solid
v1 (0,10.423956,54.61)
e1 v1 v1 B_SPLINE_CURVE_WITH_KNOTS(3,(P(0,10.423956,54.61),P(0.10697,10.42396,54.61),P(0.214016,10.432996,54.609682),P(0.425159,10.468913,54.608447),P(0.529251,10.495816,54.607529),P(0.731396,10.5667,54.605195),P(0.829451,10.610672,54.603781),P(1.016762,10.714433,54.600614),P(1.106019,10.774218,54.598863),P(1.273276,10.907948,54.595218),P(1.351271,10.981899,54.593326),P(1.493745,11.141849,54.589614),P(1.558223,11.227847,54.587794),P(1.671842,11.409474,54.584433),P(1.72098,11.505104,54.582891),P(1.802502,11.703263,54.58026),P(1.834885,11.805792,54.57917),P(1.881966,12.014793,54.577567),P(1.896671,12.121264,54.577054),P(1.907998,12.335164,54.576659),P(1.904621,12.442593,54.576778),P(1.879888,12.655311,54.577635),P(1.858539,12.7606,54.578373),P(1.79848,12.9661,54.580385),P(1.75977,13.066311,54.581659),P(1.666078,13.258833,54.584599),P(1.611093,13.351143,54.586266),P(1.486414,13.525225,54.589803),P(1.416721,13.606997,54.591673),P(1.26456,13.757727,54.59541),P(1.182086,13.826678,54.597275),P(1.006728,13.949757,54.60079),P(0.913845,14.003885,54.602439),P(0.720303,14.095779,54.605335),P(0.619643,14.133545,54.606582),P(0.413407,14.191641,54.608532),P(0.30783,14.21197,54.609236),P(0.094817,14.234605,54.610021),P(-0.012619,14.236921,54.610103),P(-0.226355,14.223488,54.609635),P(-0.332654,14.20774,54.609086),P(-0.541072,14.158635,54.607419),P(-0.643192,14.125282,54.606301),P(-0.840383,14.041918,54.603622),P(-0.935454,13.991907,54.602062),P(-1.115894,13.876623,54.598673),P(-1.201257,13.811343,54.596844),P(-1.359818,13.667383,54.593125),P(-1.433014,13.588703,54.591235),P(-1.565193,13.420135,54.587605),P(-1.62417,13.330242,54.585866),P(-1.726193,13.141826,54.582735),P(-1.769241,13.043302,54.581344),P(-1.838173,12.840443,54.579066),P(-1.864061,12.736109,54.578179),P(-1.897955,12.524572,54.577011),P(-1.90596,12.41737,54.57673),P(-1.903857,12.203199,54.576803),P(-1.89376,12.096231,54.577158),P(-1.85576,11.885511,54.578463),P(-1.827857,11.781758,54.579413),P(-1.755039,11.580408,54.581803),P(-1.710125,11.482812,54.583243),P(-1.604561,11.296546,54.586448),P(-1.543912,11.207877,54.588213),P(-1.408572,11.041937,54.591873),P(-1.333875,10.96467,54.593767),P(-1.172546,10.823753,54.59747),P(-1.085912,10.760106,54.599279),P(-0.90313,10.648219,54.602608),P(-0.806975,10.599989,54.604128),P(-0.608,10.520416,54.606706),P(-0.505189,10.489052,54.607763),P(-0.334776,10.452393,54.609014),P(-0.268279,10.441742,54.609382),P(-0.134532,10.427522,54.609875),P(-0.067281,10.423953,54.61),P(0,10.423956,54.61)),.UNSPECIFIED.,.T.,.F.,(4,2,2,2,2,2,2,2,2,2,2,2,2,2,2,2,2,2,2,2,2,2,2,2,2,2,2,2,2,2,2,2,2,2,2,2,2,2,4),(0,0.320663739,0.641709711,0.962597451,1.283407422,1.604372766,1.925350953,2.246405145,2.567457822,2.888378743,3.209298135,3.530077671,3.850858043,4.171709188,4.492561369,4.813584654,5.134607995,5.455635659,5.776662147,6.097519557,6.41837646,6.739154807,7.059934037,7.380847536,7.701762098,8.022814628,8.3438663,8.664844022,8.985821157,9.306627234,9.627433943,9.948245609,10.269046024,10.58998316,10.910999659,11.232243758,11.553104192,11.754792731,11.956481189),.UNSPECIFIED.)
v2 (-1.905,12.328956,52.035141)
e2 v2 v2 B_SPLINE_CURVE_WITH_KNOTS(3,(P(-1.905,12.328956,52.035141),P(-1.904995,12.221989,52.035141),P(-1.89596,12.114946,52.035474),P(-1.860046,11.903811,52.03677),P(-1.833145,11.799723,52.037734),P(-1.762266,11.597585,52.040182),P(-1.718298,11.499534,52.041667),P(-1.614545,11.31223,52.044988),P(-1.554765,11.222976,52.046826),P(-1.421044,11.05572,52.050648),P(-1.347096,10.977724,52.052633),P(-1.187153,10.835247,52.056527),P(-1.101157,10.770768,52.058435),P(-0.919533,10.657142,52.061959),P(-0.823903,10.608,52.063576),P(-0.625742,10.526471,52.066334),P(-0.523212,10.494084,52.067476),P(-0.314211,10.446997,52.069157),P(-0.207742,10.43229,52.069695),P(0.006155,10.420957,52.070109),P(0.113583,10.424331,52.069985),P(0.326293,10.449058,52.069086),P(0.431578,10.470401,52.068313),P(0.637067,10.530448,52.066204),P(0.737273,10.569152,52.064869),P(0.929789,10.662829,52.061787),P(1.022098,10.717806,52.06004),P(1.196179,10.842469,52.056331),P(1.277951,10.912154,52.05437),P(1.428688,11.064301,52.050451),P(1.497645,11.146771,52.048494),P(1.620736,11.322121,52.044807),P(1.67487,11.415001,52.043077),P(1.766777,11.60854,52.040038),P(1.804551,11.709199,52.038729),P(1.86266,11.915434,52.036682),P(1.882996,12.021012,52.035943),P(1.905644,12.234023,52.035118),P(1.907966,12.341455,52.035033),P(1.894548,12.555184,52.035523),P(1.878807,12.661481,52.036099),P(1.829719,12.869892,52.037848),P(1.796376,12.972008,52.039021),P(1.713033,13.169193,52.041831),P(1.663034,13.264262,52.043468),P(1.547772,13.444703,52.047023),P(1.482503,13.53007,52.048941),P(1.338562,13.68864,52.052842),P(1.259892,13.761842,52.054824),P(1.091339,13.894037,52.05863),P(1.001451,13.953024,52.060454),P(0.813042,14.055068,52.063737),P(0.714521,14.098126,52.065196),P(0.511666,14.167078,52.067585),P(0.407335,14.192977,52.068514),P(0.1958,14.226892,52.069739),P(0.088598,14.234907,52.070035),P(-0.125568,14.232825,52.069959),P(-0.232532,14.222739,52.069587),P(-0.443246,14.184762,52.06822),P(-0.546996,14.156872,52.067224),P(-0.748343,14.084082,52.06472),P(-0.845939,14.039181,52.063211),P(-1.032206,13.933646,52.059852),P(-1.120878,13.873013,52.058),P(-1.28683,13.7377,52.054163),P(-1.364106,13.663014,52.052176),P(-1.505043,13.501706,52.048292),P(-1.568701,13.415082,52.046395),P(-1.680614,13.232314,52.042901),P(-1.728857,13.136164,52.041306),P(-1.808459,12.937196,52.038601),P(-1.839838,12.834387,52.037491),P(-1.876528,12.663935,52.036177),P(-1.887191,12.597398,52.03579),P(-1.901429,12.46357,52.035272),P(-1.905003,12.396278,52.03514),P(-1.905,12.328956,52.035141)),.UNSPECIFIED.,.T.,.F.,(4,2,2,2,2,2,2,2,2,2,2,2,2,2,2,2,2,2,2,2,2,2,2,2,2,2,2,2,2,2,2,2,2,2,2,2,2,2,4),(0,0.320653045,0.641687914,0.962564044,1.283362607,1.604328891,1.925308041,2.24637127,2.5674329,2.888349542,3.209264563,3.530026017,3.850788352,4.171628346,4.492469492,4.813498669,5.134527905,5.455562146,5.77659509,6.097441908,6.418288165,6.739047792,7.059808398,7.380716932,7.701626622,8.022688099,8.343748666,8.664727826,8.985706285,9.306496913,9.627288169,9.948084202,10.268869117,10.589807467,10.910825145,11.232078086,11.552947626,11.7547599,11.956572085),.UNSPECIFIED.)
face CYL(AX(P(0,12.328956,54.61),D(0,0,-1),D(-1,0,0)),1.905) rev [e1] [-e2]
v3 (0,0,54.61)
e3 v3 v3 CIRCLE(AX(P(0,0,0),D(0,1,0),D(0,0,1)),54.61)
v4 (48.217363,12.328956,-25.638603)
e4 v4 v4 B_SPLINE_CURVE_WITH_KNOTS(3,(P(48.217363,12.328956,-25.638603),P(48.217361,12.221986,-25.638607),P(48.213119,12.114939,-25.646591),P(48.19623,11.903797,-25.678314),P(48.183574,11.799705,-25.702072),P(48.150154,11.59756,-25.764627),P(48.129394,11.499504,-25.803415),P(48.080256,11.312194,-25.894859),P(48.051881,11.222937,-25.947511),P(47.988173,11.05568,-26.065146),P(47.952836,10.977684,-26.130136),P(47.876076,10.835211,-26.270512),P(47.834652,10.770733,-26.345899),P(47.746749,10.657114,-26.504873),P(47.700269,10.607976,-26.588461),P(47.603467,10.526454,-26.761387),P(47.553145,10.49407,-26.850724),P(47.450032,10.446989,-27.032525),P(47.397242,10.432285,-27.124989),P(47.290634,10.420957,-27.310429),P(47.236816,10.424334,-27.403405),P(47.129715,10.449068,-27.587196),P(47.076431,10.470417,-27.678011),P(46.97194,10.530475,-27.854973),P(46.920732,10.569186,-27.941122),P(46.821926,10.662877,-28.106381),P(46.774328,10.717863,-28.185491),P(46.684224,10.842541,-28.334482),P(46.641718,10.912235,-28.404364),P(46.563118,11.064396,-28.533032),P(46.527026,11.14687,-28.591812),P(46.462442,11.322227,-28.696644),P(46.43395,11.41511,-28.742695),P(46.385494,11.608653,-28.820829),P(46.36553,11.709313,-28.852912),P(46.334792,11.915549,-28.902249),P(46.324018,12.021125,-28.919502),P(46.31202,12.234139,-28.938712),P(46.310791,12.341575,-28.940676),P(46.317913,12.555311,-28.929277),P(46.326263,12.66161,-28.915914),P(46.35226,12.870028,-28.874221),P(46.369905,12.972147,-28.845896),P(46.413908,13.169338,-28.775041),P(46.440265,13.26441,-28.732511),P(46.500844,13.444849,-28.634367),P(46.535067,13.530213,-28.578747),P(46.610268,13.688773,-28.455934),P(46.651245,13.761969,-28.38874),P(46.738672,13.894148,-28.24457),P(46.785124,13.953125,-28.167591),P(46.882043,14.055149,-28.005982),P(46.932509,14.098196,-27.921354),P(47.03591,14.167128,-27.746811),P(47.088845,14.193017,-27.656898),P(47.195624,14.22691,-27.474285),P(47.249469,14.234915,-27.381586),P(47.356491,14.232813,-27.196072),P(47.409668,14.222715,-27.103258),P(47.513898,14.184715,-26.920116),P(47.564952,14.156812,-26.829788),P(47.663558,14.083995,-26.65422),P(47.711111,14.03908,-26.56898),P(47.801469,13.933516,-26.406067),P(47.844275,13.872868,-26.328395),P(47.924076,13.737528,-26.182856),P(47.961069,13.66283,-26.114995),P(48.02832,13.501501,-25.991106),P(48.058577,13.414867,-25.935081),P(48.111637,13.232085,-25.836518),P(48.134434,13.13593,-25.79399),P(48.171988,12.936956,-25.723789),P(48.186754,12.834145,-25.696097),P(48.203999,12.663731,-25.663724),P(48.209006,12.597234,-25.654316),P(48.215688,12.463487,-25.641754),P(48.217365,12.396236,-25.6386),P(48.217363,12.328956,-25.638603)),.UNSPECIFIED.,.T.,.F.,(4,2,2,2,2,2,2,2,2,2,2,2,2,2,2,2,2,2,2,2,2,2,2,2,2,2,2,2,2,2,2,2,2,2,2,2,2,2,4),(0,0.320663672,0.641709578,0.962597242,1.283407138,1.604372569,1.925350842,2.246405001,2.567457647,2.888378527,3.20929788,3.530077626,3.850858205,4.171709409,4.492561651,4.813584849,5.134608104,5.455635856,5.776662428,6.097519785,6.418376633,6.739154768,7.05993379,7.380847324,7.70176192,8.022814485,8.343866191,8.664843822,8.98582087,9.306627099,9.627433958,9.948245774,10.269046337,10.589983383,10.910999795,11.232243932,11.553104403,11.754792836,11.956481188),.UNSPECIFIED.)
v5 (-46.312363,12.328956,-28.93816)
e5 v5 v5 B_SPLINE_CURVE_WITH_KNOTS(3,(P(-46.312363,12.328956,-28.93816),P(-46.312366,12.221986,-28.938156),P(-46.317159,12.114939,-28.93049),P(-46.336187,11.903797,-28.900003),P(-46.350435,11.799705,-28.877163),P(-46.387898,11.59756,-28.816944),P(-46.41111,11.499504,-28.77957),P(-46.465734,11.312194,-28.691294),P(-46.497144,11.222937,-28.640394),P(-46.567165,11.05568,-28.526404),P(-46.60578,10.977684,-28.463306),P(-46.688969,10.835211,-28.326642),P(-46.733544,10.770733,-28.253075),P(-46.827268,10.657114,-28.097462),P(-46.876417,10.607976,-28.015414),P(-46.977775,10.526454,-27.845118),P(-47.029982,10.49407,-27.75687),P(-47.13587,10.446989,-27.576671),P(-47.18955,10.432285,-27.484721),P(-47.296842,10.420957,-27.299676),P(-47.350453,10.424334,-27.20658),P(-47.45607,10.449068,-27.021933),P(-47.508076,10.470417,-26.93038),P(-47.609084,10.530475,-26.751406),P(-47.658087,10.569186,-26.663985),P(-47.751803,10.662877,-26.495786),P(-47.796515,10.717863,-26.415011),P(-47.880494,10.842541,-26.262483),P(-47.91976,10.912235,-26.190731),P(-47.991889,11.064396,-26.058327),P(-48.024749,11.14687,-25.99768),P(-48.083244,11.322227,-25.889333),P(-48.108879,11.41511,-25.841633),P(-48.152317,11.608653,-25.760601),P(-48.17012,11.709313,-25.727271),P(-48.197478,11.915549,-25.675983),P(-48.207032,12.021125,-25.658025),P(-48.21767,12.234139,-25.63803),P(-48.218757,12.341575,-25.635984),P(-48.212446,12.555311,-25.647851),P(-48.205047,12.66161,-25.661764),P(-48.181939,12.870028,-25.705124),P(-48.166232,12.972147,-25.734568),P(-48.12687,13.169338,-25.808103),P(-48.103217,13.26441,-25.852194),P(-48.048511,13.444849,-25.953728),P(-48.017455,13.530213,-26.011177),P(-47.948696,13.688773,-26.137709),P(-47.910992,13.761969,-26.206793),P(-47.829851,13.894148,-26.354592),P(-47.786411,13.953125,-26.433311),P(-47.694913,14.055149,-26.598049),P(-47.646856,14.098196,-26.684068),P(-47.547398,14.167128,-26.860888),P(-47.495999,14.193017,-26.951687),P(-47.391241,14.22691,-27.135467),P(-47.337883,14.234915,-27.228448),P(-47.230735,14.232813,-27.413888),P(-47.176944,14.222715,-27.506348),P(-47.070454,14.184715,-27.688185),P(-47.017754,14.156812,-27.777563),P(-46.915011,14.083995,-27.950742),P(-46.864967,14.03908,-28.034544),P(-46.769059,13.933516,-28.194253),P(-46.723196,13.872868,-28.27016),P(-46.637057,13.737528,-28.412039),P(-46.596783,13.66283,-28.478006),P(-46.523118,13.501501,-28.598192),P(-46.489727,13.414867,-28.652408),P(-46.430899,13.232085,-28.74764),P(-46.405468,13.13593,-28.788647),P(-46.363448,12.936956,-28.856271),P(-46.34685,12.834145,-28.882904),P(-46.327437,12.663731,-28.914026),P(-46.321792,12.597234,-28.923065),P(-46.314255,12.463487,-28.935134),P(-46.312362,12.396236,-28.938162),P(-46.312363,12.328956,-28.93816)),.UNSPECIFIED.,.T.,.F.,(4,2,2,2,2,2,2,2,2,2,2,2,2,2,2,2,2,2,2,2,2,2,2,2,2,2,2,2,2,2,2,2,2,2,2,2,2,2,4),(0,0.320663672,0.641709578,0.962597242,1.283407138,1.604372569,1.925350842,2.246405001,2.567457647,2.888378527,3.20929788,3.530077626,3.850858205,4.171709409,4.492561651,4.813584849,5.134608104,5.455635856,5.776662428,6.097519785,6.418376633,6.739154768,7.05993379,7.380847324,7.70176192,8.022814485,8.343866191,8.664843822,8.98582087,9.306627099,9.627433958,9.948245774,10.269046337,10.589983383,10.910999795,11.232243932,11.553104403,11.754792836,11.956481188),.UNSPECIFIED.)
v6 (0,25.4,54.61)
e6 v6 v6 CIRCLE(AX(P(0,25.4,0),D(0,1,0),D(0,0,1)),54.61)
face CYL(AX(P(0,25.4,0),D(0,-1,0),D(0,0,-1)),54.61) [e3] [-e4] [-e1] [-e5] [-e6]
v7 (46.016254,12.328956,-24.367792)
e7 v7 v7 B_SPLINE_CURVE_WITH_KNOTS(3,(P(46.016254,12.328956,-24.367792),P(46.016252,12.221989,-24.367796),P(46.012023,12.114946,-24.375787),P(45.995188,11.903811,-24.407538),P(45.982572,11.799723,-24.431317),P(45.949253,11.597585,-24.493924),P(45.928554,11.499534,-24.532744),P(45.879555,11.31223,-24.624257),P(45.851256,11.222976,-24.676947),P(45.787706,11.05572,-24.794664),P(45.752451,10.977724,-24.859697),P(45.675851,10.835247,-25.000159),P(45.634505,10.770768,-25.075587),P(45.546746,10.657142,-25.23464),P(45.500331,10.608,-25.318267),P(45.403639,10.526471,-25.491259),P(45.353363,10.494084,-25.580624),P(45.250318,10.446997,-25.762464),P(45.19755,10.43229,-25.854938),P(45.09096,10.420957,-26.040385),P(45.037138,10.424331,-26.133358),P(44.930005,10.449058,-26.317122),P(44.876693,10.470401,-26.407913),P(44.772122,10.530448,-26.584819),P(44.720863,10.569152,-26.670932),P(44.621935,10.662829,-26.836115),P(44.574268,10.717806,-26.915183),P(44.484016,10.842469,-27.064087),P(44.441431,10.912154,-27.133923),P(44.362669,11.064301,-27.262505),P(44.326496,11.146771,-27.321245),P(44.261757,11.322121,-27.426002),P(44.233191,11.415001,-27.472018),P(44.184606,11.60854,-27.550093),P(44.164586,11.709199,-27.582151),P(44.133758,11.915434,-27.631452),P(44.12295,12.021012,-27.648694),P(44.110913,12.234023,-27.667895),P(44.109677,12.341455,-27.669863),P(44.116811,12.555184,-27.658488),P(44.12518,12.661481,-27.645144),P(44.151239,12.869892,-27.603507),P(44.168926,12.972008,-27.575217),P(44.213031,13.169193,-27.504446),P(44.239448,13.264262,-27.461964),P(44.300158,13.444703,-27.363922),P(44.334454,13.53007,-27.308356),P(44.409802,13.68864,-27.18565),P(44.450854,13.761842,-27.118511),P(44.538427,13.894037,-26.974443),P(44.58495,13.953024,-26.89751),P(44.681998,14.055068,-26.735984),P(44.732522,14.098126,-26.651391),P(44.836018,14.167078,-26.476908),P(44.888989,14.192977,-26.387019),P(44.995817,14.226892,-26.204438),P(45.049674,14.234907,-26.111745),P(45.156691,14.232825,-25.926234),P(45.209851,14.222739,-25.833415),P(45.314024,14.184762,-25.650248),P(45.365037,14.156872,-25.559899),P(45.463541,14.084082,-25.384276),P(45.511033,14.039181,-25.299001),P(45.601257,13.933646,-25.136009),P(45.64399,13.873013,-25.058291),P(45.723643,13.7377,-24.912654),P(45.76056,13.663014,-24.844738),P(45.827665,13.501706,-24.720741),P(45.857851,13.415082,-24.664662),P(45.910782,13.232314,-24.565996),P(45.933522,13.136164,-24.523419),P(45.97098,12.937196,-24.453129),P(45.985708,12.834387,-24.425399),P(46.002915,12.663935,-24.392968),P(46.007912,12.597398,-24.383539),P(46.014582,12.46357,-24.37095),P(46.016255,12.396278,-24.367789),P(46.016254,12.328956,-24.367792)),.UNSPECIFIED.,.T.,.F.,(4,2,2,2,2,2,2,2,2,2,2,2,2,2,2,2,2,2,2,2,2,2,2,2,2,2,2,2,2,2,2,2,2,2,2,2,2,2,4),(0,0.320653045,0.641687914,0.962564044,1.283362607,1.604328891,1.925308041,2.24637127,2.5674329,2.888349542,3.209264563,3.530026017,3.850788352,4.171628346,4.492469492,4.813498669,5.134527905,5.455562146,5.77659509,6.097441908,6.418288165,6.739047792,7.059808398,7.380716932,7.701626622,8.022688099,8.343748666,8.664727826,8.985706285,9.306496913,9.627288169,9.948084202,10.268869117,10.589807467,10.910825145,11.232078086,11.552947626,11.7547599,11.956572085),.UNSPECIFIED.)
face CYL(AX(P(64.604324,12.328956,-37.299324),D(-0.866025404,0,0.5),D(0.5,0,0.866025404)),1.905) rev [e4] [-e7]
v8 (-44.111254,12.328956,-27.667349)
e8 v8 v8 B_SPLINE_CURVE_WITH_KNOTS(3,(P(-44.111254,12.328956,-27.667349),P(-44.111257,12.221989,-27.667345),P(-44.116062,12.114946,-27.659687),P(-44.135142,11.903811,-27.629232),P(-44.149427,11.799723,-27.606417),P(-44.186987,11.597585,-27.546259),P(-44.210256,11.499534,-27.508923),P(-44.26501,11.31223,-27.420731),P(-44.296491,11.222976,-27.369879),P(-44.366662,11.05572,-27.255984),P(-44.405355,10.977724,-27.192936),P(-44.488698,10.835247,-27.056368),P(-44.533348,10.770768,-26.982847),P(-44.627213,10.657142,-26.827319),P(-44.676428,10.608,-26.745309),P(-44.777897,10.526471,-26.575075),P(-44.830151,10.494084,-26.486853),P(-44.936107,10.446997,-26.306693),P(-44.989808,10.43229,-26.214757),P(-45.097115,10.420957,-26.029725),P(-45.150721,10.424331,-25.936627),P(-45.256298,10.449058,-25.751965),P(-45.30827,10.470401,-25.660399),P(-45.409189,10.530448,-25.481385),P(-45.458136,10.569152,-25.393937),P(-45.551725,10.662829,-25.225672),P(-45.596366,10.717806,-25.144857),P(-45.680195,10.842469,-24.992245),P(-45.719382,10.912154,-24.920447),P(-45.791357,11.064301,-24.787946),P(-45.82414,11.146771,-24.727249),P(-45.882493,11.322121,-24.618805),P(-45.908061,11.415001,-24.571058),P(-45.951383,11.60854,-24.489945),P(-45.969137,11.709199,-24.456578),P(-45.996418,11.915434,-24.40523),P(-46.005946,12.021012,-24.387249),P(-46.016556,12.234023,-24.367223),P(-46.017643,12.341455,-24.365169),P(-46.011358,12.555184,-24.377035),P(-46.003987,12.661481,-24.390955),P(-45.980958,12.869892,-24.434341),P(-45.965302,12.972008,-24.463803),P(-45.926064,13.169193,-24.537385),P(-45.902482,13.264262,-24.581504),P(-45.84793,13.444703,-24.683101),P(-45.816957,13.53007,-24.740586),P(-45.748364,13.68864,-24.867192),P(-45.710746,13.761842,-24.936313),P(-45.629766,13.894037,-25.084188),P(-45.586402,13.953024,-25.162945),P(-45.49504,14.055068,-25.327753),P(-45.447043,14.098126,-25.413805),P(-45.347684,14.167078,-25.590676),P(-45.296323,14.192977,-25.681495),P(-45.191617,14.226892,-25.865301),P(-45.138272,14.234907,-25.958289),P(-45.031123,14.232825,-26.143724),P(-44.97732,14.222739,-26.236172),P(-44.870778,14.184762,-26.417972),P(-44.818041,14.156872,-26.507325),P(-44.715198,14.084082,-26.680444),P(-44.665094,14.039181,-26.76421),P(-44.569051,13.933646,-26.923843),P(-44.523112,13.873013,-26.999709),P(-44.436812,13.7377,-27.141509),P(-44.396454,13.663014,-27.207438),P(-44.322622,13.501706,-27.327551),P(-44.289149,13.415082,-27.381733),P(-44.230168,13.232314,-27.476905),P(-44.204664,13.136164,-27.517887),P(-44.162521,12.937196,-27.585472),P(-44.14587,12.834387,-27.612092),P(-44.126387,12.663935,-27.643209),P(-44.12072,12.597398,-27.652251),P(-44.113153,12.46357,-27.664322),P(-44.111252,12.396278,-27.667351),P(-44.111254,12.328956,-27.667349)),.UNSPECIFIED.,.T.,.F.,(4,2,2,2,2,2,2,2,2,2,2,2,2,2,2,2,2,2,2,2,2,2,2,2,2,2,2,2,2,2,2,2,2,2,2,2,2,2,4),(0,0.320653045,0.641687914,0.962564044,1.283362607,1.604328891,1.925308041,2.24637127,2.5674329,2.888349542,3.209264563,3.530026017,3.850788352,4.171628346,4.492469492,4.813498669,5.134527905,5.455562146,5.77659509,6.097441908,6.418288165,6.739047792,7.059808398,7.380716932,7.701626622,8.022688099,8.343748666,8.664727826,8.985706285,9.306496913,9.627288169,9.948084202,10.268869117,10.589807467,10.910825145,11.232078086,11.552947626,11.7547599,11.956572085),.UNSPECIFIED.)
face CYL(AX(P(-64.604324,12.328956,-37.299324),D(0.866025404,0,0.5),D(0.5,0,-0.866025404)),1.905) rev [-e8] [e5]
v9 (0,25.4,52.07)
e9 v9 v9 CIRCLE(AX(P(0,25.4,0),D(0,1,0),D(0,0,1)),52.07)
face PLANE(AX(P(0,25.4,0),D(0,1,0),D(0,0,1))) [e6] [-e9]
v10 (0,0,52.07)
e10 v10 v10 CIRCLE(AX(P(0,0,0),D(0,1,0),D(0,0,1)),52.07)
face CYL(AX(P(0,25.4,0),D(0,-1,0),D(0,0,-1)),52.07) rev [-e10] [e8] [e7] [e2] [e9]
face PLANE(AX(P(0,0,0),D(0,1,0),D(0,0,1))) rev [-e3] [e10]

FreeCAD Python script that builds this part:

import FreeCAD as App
import Part
import Sketcher

V = App.Vector
Q = App.Units.Quantity

doc = App.newDocument("Part")
body = doc.addObject("PartDesign::Body", "Body")

sketch1 = body.newObject("Sketcher::SketchObject", "Sketch")
sketch1.AttachmentSupport = (doc.getObject("XZ_Plane"), [""])
sketch1.MapMode = "FlatFace"
sketch1.addGeometry([
    Part.Circle(V(0, 0, 0), V(0, 0, 1), 55),
    Part.Circle(V(0, 0, 0), V(0, 0, 1), 52),
], False)
sketch1.addConstraint([
    Sketcher.Constraint("Coincident", 0, 3, -1, 1),
    Sketcher.Constraint("Coincident", 1, 3, -1, 1),
    Sketcher.Constraint("Diameter", 0, Q("4.3 in")),
    Sketcher.Constraint("Diameter", 1, Q("4.1 in")),
])
pad1 = body.newObject("PartDesign::Pad", "Pad")
pad1.Profile = sketch1
pad1.Length = Q("1 in")
pad1.Reversed = True

sketch2 = body.newObject("Sketcher::SketchObject", "Sketch001")
sketch2.AttachmentSupport = (doc.getObject("XY_Plane"), [""])
sketch2.MapMode = "FlatFace"
sketch2.addGeometry(Part.Circle(V(0, 12.3, 0), V(0, 0, 1), 1.9), False)
sketch2.addConstraint([
    Sketcher.Constraint("PointOnObject", 0, 3, -2),
    Sketcher.Constraint("Diameter", 0, Q("0.15 in")),
    Sketcher.Constraint("DistanceY", -1, 1, 0, 3, 12.328956),
])
pocket1 = body.newObject("PartDesign::Pocket", "Pocket")
pocket1.Profile = sketch2
pocket1.Type = "ThroughAll"
pocket1.Reversed = True
doc.recompute()

polarpattern = body.newObject("PartDesign::PolarPattern", "PolarPattern")
polarpattern.Originals = [pocket1]
polarpattern.Axis = (doc.getObject("Y_Axis"), [""])
polarpattern.Angle = 360
polarpattern.Occurrences = 3
body.Tip = polarpattern

doc.recompute()
